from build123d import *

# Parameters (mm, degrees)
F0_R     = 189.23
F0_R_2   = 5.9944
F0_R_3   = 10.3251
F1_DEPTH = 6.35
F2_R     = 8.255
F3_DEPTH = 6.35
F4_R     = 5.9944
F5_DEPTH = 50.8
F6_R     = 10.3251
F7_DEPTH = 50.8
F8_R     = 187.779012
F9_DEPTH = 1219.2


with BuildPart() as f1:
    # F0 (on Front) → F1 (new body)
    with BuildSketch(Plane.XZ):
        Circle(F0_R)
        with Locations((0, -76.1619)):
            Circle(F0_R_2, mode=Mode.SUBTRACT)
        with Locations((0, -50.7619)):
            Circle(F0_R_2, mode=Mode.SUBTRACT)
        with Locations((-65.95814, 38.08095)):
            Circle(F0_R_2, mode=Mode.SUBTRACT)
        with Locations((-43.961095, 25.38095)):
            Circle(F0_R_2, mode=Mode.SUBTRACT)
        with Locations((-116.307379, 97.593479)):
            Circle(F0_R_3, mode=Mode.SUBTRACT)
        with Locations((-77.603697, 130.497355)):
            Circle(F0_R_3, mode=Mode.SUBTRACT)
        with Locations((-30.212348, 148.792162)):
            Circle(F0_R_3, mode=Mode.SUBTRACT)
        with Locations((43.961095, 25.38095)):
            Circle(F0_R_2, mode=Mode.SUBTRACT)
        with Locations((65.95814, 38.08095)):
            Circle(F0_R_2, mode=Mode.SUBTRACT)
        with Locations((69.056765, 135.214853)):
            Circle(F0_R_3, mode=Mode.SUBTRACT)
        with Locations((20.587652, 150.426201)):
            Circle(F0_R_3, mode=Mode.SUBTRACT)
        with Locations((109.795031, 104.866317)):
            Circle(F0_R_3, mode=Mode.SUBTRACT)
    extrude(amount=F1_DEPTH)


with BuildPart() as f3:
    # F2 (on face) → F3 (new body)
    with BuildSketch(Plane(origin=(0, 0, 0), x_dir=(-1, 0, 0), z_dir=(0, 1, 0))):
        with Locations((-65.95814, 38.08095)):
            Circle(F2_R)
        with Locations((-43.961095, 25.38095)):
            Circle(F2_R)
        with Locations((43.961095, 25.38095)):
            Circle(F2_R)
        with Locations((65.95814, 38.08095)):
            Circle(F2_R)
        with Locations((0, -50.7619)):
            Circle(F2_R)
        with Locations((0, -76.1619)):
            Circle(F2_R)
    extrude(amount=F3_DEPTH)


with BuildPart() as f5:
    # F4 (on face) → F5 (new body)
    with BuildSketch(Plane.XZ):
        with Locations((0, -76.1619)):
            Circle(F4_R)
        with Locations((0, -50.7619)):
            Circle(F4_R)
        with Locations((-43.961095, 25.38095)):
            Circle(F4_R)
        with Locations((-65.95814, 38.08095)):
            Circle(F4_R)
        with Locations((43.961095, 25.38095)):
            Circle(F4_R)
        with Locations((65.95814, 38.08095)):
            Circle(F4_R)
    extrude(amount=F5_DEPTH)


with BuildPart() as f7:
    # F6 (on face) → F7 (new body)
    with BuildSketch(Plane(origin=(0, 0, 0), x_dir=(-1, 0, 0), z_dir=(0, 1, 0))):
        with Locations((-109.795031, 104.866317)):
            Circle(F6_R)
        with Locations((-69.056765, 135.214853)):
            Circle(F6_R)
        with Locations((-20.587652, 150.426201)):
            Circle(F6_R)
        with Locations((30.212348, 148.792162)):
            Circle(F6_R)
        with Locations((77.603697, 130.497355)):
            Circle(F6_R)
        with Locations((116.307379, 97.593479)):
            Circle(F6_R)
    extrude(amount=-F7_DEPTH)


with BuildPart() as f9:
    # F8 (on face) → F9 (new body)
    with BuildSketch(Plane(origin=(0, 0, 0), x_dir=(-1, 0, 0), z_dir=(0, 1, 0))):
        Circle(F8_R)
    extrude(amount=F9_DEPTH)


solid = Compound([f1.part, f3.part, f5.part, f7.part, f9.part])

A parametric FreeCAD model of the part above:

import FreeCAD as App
import Part
import Sketcher
Q = App.Units.Quantity

doc = App.newDocument("Part")
params = doc.addObject("Spreadsheet::Sheet", "Params")
for row, (alias, value) in enumerate([
    ("sketch1_diameter", "14.9 in"),
    ("sketch1_diameter2", "0.472 in"),
    ("sketch1_diameter3", "0.813 in"),
    ("pad1_length", "0.25 in"),
    ("sketch2_diameter", "0.65 in"),
    ("pad2_length", "0.25 in"),
    ("sketch3_diameter", "0.472 in"),
    ("pad3_length", "2 in"),
    ("sketch4_diameter", "0.813 in"),
    ("pad4_length", "2 in"),
    ("pad5_length", "48 in"),
], start=1):
    params.set(f"A{row}", alias)
    params.set(f"B{row}", "=" + value)
    params.setAlias(f"B{row}", alias)

body = doc.addObject("PartDesign::Body", "Body")

# Sketch on XZ plane
sketch1 = body.newObject("Sketcher::SketchObject", "Sketch")
sketch1.AttachmentSupport = (doc.getObject("XZ_Plane"), [""])
sketch1.MapMode = "FlatFace"
sketch1.addGeometry(Part.Circle(App.Vector(0, 0, 0), App.Vector(0, 0, 1), 189), False)
sketch1.addGeometry(Part.Circle(App.Vector(-66, 38, 0), App.Vector(0, 0, 1), 6), False)
sketch1.addGeometry(Part.Circle(App.Vector(-44, 25, 0), App.Vector(0, 0, 1), 6), False)
sketch1.addGeometry(Part.Circle(App.Vector(0, -76, 0), App.Vector(0, 0, 1), 6), False)
sketch1.addGeometry(Part.Circle(App.Vector(0, -51, 0), App.Vector(0, 0, 1), 6), False)
sketch1.addGeometry(Part.Circle(App.Vector(44, 25, 0), App.Vector(0, 0, 1), 6), False)
sketch1.addGeometry(Part.Circle(App.Vector(66, 38, 0), App.Vector(0, 0, 1), 6), False)
sketch1.addGeometry(Part.Circle(App.Vector(-116, 98, 0), App.Vector(0, 0, 1), 10), False)
sketch1.addGeometry(Part.Circle(App.Vector(-78, 130, 0), App.Vector(0, 0, 1), 10), False)
sketch1.addGeometry(Part.Circle(App.Vector(-30, 149, 0), App.Vector(0, 0, 1), 10), False)
sketch1.addGeometry(Part.Circle(App.Vector(21, 150, 0), App.Vector(0, 0, 1), 10), False)
sketch1.addGeometry(Part.Circle(App.Vector(110, 105, 0), App.Vector(0, 0, 1), 10), False)
sketch1.addGeometry(Part.Circle(App.Vector(69, 135, 0), App.Vector(0, 0, 1), 10), False)
sketch1.addConstraint(Sketcher.Constraint("Coincident", 0, 3, -1, 1))
sketch1.addConstraint(Sketcher.Constraint("Equal", 1, 2))
sketch1.addConstraint(Sketcher.Constraint("Equal", 2, 3))
sketch1.addConstraint(Sketcher.Constraint("Equal", 3, 4))
sketch1.addConstraint(Sketcher.Constraint("Equal", 4, 5))
sketch1.addConstraint(Sketcher.Constraint("Equal", 5, 6))
sketch1.addConstraint(Sketcher.Constraint("Equal", 7, 8))
sketch1.addConstraint(Sketcher.Constraint("Equal", 8, 9))
sketch1.addConstraint(Sketcher.Constraint("Equal", 9, 10))
sketch1.addConstraint(Sketcher.Constraint("Equal", 10, 11))
sketch1.addConstraint(Sketcher.Constraint("Equal", 11, 12))
sketch1.addConstraint(Sketcher.Constraint("Symmetric", 2, 3, 5, 3, -2))
sketch1.addConstraint(Sketcher.Constraint("Symmetric", 1, 3, 6, 3, -2))
sketch1.addConstraint(Sketcher.Constraint("PointOnObject", 3, 3, -2))
sketch1.addConstraint(Sketcher.Constraint("PointOnObject", 4, 3, -2))
sketch1.addConstraint(Sketcher.Constraint("Diameter", 0, Q("14.9 in")))
sketch1.addConstraint(Sketcher.Constraint("Diameter", 1, Q("0.472 in")))
sketch1.addConstraint(Sketcher.Constraint("Diameter", 7, Q("0.813 in")))
sketch1.addConstraint(Sketcher.Constraint("DistanceY", 3, 3, 4, 3, Q("1 in")))
sketch1.addConstraint(Sketcher.Constraint("DistanceX", 9, 3, 10, 3, Q("2 in")))
sketch1.addConstraint(Sketcher.Constraint("DistanceY", 2, 3, 1, 3, Q("0.5 in")))
sketch1.addConstraint(Sketcher.Constraint("DistanceY", 3, 3, -1, 1, Q("2.9985 in")))
sketch1.addConstraint(Sketcher.Constraint("DistanceY", -1, 1, 10, 3, 150.426201))
sketch1.addConstraint(Sketcher.Constraint("DistanceX", 8, 3, 2, 3, 33.642602))
sketch1.addConstraint(Sketcher.Constraint("DistanceX", 1, 3, -1, 1, 65.95814))
sketch1.addConstraint(Sketcher.Constraint("DistanceY", -1, 1, 1, 3, 38.08095))
sketch1.addConstraint(Sketcher.Constraint("DistanceX", 7, 3, -1, 1, 116.307379))
sketch1.addConstraint(Sketcher.Constraint("DistanceY", -1, 1, 7, 3, 97.593479))
sketch1.addConstraint(Sketcher.Constraint("DistanceY", -1, 1, 9, 3, 148.792162))
sketch1.addConstraint(Sketcher.Constraint("DistanceX", -1, 1, 10, 3, 20.587652))
sketch1.addConstraint(Sketcher.Constraint("DistanceX", -1, 1, 11, 3, 109.795031))
sketch1.addConstraint(Sketcher.Constraint("DistanceX", 2, 3, 5, 3, 87.92219))
sketch1.addConstraint(Sketcher.Constraint("DistanceY", 12, 3, 9, 3, 13.577309))
sketch1.addConstraint(Sketcher.Constraint("DistanceX", 5, 3, 12, 3, 25.09567))
sketch1.addConstraint(Sketcher.Constraint("DistanceY", -1, 1, 8, 3, 130.497355))
sketch1.addConstraint(Sketcher.Constraint("DistanceY", -1, 1, 11, 3, 104.866317))
sketch1.setExpression("Constraints[15]", "Params.sketch1_diameter")
sketch1.setExpression("Constraints[16]", "Params.sketch1_diameter2")
sketch1.setExpression("Constraints[17]", "Params.sketch1_diameter3")
pad1 = body.newObject("PartDesign::Pad", "Pad")
pad1.Profile = sketch1
pad1.setExpression("Length", "Params.pad1_length")
body2 = doc.addObject("PartDesign::Body", "Body001")
body2.AllowCompound = True

# Sketch on XZ plane
sketch2 = body2.newObject("Sketcher::SketchObject", "Sketch001")
sketch2.AttachmentSupport = (doc.getObject("XZ_Plane001"), [""])
sketch2.MapMode = "FlatFace"
sketch2.addGeometry(Part.Circle(App.Vector(66, 38, 0), App.Vector(0, 0, 1), 8), False)
sketch2.addGeometry(Part.Circle(App.Vector(44, 25, 0), App.Vector(0, 0, 1), 8), False)
sketch2.addGeometry(Part.Circle(App.Vector(-44, 25, 0), App.Vector(0, 0, 1), 8), False)
sketch2.addGeometry(Part.Circle(App.Vector(-66, 38, 0), App.Vector(0, 0, 1), 8), False)
sketch2.addGeometry(Part.Circle(App.Vector(0, -51, 0), App.Vector(0, 0, 1), 8), False)
sketch2.addGeometry(Part.Circle(App.Vector(0, -76, 0), App.Vector(0, 0, 1), 8), False)
sketch2.addConstraint(Sketcher.Constraint("Equal", 0, 1))
sketch2.addConstraint(Sketcher.Constraint("Equal", 1, 2))
sketch2.addConstraint(Sketcher.Constraint("Equal", 2, 3))
sketch2.addConstraint(Sketcher.Constraint("Equal", 3, 4))
sketch2.addConstraint(Sketcher.Constraint("Equal", 4, 5))
sketch2.addConstraint(Sketcher.Constraint("Symmetric", 1, 3, 2, 3, -2))
sketch2.addConstraint(Sketcher.Constraint("Symmetric", 0, 3, 3, 3, -2))
sketch2.addConstraint(Sketcher.Constraint("PointOnObject", 4, 3, -2))
sketch2.addConstraint(Sketcher.Constraint("PointOnObject", 5, 3, -2))
sketch2.addConstraint(Sketcher.Constraint("Diameter", 0, Q("0.65 in")))
sketch2.addConstraint(Sketcher.Constraint("DistanceY", 5, 3, 4, 3, Q("1 in")))
sketch2.addConstraint(Sketcher.Constraint("DistanceY", 1, 3, 0, 3, Q("0.5 in")))
sketch2.addConstraint(Sketcher.Constraint("DistanceY", 4, 3, -1, 1, Q("1.9985 in")))
sketch2.addConstraint(Sketcher.Constraint("DistanceX", -1, 1, 0, 3, 65.95814))
sketch2.addConstraint(Sketcher.Constraint("DistanceY", -1, 1, 0, 3, 38.08095))
sketch2.addConstraint(Sketcher.Constraint("DistanceX", 2, 3, 1, 3, 87.92219))
sketch2.setExpression("Constraints[9]", "Params.sketch2_diameter")
pad2 = body2.newObject("PartDesign::Pad", "Pad001")
pad2.Profile = sketch2
pad2.setExpression("Length", "Params.pad2_length")
pad2.Reversed = True
body3 = doc.addObject("PartDesign::Body", "Body002")
body3.AllowCompound = True

# Sketch on XZ plane
sketch3 = body3.newObject("Sketcher::SketchObject", "Sketch002")
sketch3.AttachmentSupport = (doc.getObject("XZ_Plane002"), [""])
sketch3.MapMode = "FlatFace"
sketch3.addGeometry(Part.Circle(App.Vector(0, -76, 0), App.Vector(0, 0, 1), 6), False)
sketch3.addGeometry(Part.Circle(App.Vector(0, -51, 0), App.Vector(0, 0, 1), 6), False)
sketch3.addGeometry(Part.Circle(App.Vector(-44, 25, 0), App.Vector(0, 0, 1), 6), False)
sketch3.addGeometry(Part.Circle(App.Vector(-66, 38, 0), App.Vector(0, 0, 1), 6), False)
sketch3.addGeometry(Part.Circle(App.Vector(44, 25, 0), App.Vector(0, 0, 1), 6), False)
sketch3.addGeometry(Part.Circle(App.Vector(66, 38, 0), App.Vector(0, 0, 1), 6), False)
sketch3.addConstraint(Sketcher.Constraint("Equal", 0, 1))
sketch3.addConstraint(Sketcher.Constraint("Equal", 1, 2))
sketch3.addConstraint(Sketcher.Constraint("Equal", 2, 3))
sketch3.addConstraint(Sketcher.Constraint("Equal", 3, 4))
sketch3.addConstraint(Sketcher.Constraint("Equal", 4, 5))
sketch3.addConstraint(Sketcher.Constraint("Symmetric", 2, 3, 4, 3, -2))
sketch3.addConstraint(Sketcher.Constraint("Symmetric", 3, 3, 5, 3, -2))
sketch3.addConstraint(Sketcher.Constraint("PointOnObject", 0, 3, -2))
sketch3.addConstraint(Sketcher.Constraint("PointOnObject", 1, 3, -2))
sketch3.addConstraint(Sketcher.Constraint("Diameter", 0, Q("0.472 in")))
sketch3.addConstraint(Sketcher.Constraint("DistanceY", 0, 3, 1, 3, Q("1 in")))
sketch3.addConstraint(Sketcher.Constraint("DistanceY", 2, 3, 3, 3, Q("0.5 in")))
sketch3.addConstraint(Sketcher.Constraint("DistanceY", 0, 3, -1, 1, Q("2.9985 in")))
sketch3.addConstraint(Sketcher.Constraint("DistanceY", -1, 1, 2, 3, 25.38095))
sketch3.addConstraint(Sketcher.Constraint("DistanceX", 3, 3, -1, 1, 65.95814))
sketch3.addConstraint(Sketcher.Constraint("DistanceX", 2, 3, 4, 3, 87.92219))
sketch3.setExpression("Constraints[9]", "Params.sketch3_diameter")
pad3 = body3.newObject("PartDesign::Pad", "Pad002")
pad3.Profile = sketch3
pad3.setExpression("Length", "Params.pad3_length")
body4 = doc.addObject("PartDesign::Body", "Body003")
body4.AllowCompound = True

# Sketch on XZ plane
sketch4 = body4.newObject("Sketcher::SketchObject", "Sketch003")
sketch4.AttachmentSupport = (doc.getObject("XZ_Plane003"), [""])
sketch4.MapMode = "FlatFace"
sketch4.addGeometry(Part.Circle(App.Vector(110, 105, 0), App.Vector(0, 0, 1), 10), False)
sketch4.addGeometry(Part.Circle(App.Vector(69, 135, 0), App.Vector(0, 0, 1), 10), False)
sketch4.addGeometry(Part.Circle(App.Vector(21, 150, 0), App.Vector(0, 0, 1), 10), False)
sketch4.addGeometry(Part.Circle(App.Vector(-30, 149, 0), App.Vector(0, 0, 1), 10), False)
sketch4.addGeometry(Part.Circle(App.Vector(-78, 130, 0), App.Vector(0, 0, 1), 10), False)
sketch4.addGeometry(Part.Circle(App.Vector(-116, 98, 0), App.Vector(0, 0, 1), 10), False)
sketch4.addConstraint(Sketcher.Constraint("Equal", 0, 1))
sketch4.addConstraint(Sketcher.Constraint("Equal", 1, 2))
sketch4.addConstraint(Sketcher.Constraint("Equal", 2, 3))
sketch4.addConstraint(Sketcher.Constraint("Equal", 3, 4))
sketch4.addConstraint(Sketcher.Constraint("Equal", 4, 5))
sketch4.addConstraint(Sketcher.Constraint("Diameter", 0, Q("0.813 in")))
sketch4.addConstraint(Sketcher.Constraint("DistanceX", 3, 3, 2, 3, Q("2 in")))
sketch4.addConstraint(Sketcher.Constraint("DistanceY", -1, 1, 2, 3, 150.426201))
sketch4.addConstraint(Sketcher.Constraint("DistanceY", 4, 3, 1, 3, 4.717498))
sketch4.addConstraint(Sketcher.Constraint("DistanceX", -1, 1, 0, 3, 109.795031))
sketch4.addConstraint(Sketcher.Constraint("DistanceX", -1, 1, 2, 3, 20.587652))
sketch4.addConstraint(Sketcher.Constraint("DistanceY", -1, 1, 3, 3, 148.792162))
sketch4.addConstraint(Sketcher.Constraint("DistanceX", 5, 3, -1, 1, 116.307379))
sketch4.addConstraint(Sketcher.Constraint("DistanceY", -1, 1, 5, 3, 97.593479))
sketch4.addConstraint(Sketcher.Constraint("DistanceY", 1, 3, 3, 3, 13.577309))
sketch4.addConstraint(Sketcher.Constraint("DistanceX", 4, 3, 3, 3, 47.391349))
sketch4.addConstraint(Sketcher.Constraint("DistanceX", 4, 3, 1, 3, 146.660462))
sketch4.addConstraint(Sketcher.Constraint("DistanceY", 0, 3, 4, 3, 25.631038))
sketch4.setExpression("Constraints[5]", "Params.sketch4_diameter")
pad4 = body4.newObject("PartDesign::Pad", "Pad003")
pad4.Profile = sketch4
pad4.setExpression("Length", "Params.pad4_length")
body5 = doc.addObject("PartDesign::Body", "Body004")

# Sketch on XZ plane
sketch5 = body5.newObject("Sketcher::SketchObject", "Sketch004")
sketch5.AttachmentSupport = (doc.getObject("XZ_Plane004"), [""])
sketch5.MapMode = "FlatFace"
sketch5.addGeometry(Part.Circle(App.Vector(0, 0, 0), App.Vector(0, 0, 1), 188), False)
sketch5.addConstraint(Sketcher.Constraint("Coincident", 0, 3, -1, 1))
sketch5.addConstraint(Sketcher.Constraint("Diameter", 0, 375.558024))
pad5 = body5.newObject("PartDesign::Pad", "Pad004")
pad5.Profile = sketch5
pad5.setExpression("Length", "Params.pad5_length")
pad5.Reversed = True

doc.recompute()
